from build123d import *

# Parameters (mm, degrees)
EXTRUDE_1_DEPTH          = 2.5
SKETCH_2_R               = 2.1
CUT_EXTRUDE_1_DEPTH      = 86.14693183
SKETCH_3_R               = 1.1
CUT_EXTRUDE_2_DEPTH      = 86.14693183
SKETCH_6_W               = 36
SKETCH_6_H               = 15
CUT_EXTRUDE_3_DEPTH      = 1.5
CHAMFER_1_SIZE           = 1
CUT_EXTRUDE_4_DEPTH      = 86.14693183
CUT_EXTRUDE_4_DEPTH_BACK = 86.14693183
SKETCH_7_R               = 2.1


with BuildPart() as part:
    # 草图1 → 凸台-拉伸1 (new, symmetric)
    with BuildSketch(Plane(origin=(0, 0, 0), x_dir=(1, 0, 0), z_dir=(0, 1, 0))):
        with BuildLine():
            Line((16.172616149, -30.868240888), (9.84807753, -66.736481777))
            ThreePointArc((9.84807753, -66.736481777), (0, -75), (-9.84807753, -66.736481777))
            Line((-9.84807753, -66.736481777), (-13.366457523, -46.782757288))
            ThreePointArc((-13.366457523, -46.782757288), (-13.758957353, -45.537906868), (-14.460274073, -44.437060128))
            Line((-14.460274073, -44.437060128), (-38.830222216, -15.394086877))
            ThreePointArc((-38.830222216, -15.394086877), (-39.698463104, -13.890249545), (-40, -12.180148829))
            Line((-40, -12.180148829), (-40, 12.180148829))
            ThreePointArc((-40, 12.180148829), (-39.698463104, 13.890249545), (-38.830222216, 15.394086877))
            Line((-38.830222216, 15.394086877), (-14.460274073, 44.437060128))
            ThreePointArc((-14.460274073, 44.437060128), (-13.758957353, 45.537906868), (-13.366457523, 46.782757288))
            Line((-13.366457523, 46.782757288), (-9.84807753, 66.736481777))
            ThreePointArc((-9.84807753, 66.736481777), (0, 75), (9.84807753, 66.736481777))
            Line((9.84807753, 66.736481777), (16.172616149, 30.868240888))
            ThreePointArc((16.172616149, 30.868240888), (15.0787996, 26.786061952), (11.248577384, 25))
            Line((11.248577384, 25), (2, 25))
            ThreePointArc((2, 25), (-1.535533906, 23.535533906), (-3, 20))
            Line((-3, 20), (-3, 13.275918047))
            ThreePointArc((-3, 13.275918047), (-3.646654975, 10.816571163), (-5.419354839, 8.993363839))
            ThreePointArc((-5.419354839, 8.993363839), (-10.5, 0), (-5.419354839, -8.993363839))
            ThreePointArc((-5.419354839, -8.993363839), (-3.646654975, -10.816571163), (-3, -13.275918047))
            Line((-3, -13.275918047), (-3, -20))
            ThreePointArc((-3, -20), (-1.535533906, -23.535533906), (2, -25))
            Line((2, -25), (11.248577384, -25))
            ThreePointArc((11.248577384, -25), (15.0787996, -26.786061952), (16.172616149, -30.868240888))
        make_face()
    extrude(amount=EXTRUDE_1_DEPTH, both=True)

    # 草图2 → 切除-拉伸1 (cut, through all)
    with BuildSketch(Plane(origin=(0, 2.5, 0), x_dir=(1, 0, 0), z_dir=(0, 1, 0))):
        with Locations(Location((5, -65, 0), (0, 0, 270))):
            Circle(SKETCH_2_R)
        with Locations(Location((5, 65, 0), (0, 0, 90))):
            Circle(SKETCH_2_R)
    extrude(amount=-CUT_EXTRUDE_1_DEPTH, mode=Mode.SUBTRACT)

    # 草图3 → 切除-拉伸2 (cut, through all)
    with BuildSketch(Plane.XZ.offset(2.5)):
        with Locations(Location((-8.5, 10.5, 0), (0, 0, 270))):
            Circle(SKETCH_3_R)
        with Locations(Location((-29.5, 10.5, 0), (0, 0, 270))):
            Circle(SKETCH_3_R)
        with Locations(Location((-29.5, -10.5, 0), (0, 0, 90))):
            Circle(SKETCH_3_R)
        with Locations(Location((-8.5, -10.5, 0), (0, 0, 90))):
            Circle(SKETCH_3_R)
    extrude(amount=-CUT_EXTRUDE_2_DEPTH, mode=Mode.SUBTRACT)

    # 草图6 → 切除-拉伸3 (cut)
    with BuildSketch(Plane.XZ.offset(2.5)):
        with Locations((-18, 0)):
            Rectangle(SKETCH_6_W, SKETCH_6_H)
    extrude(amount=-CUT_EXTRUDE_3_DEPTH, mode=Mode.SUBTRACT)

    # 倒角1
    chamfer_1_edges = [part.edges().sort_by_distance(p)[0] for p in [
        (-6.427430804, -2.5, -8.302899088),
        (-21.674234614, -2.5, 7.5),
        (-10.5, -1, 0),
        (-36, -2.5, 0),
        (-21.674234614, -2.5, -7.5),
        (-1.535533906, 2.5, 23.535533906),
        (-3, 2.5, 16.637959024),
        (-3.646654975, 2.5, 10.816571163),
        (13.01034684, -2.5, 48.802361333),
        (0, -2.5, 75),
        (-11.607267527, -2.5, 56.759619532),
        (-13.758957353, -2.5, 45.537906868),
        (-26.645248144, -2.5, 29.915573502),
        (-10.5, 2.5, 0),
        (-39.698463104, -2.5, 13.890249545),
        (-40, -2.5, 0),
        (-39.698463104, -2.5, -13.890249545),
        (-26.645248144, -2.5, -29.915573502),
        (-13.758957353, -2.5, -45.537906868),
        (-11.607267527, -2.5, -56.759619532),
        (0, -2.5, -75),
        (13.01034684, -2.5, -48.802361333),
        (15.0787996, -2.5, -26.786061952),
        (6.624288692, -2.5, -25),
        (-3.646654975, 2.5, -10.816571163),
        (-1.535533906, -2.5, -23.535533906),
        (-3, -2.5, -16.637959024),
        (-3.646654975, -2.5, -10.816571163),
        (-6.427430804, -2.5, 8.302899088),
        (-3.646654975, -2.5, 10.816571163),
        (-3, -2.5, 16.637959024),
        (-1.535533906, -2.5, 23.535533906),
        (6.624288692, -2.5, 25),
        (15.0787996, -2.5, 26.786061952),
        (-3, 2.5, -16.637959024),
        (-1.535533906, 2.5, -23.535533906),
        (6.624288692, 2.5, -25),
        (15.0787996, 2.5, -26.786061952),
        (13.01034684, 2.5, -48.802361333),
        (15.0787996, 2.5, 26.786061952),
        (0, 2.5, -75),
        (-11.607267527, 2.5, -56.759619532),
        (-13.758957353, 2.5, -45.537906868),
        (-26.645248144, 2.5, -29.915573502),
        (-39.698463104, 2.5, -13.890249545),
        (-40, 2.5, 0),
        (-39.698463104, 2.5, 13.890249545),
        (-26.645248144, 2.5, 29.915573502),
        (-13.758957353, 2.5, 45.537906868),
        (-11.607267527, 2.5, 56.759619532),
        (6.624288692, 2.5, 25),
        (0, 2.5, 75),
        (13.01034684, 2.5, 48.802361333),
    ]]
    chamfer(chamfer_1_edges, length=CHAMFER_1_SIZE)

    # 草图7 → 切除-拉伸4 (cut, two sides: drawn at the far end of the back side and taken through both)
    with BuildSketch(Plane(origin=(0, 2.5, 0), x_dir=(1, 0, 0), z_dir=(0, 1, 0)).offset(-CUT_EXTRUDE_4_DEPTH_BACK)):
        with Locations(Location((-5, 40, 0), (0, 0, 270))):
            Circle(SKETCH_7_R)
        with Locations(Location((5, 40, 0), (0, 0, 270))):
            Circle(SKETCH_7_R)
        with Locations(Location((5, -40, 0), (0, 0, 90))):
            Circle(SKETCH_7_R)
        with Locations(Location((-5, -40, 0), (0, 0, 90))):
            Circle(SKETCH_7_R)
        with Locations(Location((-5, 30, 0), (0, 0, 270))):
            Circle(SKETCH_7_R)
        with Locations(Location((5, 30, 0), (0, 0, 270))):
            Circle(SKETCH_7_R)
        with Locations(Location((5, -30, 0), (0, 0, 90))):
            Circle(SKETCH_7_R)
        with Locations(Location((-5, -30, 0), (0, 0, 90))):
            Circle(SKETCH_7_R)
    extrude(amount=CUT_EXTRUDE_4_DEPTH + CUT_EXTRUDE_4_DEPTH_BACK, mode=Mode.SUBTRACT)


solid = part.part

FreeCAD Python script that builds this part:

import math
import FreeCAD as App
import Part
import Sketcher
Q = App.Units.Quantity


def edges_at(feature, points):
    """Names of the edges that pass closest to the given points."""
    edges = feature.Shape.Edges
    near = lambda p: min(range(len(edges)), key=lambda i: edges[i].distToShape(Part.Vertex(*p))[0])
    return sorted({f"Edge{near(p) + 1}" for p in points})

doc = App.newDocument("Part")
body = doc.addObject("PartDesign::Body", "Body")

sketch1 = body.newObject("Sketcher::SketchObject", "Sketch")
sketch1.AttachmentSupport = (doc.getObject("XZ_Plane"), [""])
sketch1.MapMode = "FlatFace"
sketch1.addGeometry([
    Part.LineSegment(App.Vector(9.8, 66.7, 0), App.Vector(16.2, 30.9, 0)),
    Part.ArcOfCircle(Part.Circle(App.Vector(11.2, 30, 0), App.Vector(0, 0, 1), 5), math.radians(-90), math.radians(10)),
    Part.LineSegment(App.Vector(11.2, 25, 0), App.Vector(2, 25, 0)),
    Part.ArcOfCircle(Part.Circle(App.Vector(2, 20, 0), App.Vector(0, 0, 1), 5), math.radians(90), math.radians(180)),
    Part.LineSegment(App.Vector(-3, 20, 0), App.Vector(-3, 13.3, 0)),
    Part.ArcOfCircle(Part.Circle(App.Vector(-8, 13.3, 0), App.Vector(0, 0, 1), 5), math.radians(-59), math.radians(0)),
    Part.ArcOfCircle(Part.Circle(App.Vector(0, 0, 0), App.Vector(0, 0, 1), 10.5), math.radians(121), math.radians(239)),
    Part.ArcOfCircle(Part.Circle(App.Vector(-8, -13.3, 0), App.Vector(0, 0, 1), 5), math.radians(0), math.radians(59)),
    Part.LineSegment(App.Vector(-3, -13.3, 0), App.Vector(-3, -20, 0)),
    Part.ArcOfCircle(Part.Circle(App.Vector(2, -20, 0), App.Vector(0, 0, 1), 5), math.radians(180), math.radians(270)),
    Part.LineSegment(App.Vector(2, -25, 0), App.Vector(11.2, -25, 0)),
    Part.ArcOfCircle(Part.Circle(App.Vector(11.2, -30, 0), App.Vector(0, 0, 1), 5), math.radians(-10), math.radians(90)),
    Part.LineSegment(App.Vector(16.2, -30.9, 0), App.Vector(9.8, -66.7, 0)),
    Part.ArcOfCircle(Part.Circle(App.Vector(0, -65, 0), App.Vector(0, 0, 1), 10), math.radians(-170), math.radians(-10)),
    Part.LineSegment(App.Vector(-9.8, -66.7, 0), App.Vector(-13.4, -46.8, 0)),
    Part.ArcOfCircle(Part.Circle(App.Vector(-18.3, -47.7, 0), App.Vector(0, 0, 1), 5), math.radians(10), math.radians(40)),
    Part.LineSegment(App.Vector(-14.5, -44.4, 0), App.Vector(-38.8, -15.4, 0)),
    Part.ArcOfCircle(Part.Circle(App.Vector(-35, -12.2, 0), App.Vector(0, 0, 1), 5), math.radians(-180), math.radians(-140)),
    Part.LineSegment(App.Vector(-40, -12.2, 0), App.Vector(-40, 12.2, 0)),
    Part.ArcOfCircle(Part.Circle(App.Vector(-35, 12.2, 0), App.Vector(0, 0, 1), 5), math.radians(140), math.radians(180)),
    Part.LineSegment(App.Vector(-38.8, 15.4, 0), App.Vector(-14.5, 44.4, 0)),
    Part.ArcOfCircle(Part.Circle(App.Vector(-18.3, 47.7, 0), App.Vector(0, 0, 1), 5), math.radians(-40), math.radians(-10)),
    Part.LineSegment(App.Vector(-13.4, 46.8, 0), App.Vector(-9.8, 66.7, 0)),
    Part.ArcOfCircle(Part.Circle(App.Vector(0, 65, 0), App.Vector(0, 0, 1), 10), math.radians(10), math.radians(170)),
], False)
sketch1.addConstraint([
    Sketcher.Constraint("Tangent", 0, 2, 1, 2),
    Sketcher.Constraint("Tangent", 1, 1, 2, 1),
    Sketcher.Constraint("Tangent", 2, 2, 3, 1),
    Sketcher.Constraint("Tangent", 3, 2, 4, 1),
    Sketcher.Constraint("Tangent", 4, 2, 5, 2),
    Sketcher.Constraint("Tangent", 5, 1, 6, 1),
    Sketcher.Constraint("Tangent", 6, 2, 7, 2),
    Sketcher.Constraint("Tangent", 7, 1, 8, 1),
    Sketcher.Constraint("Tangent", 8, 2, 9, 1),
    Sketcher.Constraint("Tangent", 9, 2, 10, 1),
    Sketcher.Constraint("Tangent", 10, 2, 11, 2),
    Sketcher.Constraint("Tangent", 11, 1, 12, 1),
    Sketcher.Constraint("Tangent", 12, 2, 13, 2),
    Sketcher.Constraint("Tangent", 13, 1, 14, 1),
    Sketcher.Constraint("Tangent", 14, 2, 15, 1),
    Sketcher.Constraint("Tangent", 15, 2, 16, 1),
    Sketcher.Constraint("Tangent", 16, 2, 17, 2),
    Sketcher.Constraint("Tangent", 17, 1, 18, 1),
    Sketcher.Constraint("Tangent", 18, 2, 19, 2),
    Sketcher.Constraint("Tangent", 19, 1, 20, 1),
    Sketcher.Constraint("Tangent", 20, 2, 21, 1),
    Sketcher.Constraint("Tangent", 21, 2, 22, 1),
    Sketcher.Constraint("Tangent", 22, 2, 23, 2),
    Sketcher.Constraint("Tangent", 23, 1, 0, 1),
    Sketcher.Constraint("Horizontal", 2),
    Sketcher.Constraint("Vertical", 4),
    Sketcher.Constraint("Vertical", 8),
    Sketcher.Constraint("Horizontal", 10),
    Sketcher.Constraint("Vertical", 18),
    Sketcher.Constraint("Coincident", 6, 3, -1, 1),
    Sketcher.Constraint("Equal", 1, 3),
    Sketcher.Constraint("Equal", 3, 5),
    Sketcher.Constraint("Equal", 5, 7),
    Sketcher.Constraint("Equal", 7, 9),
    Sketcher.Constraint("Equal", 9, 11),
    Sketcher.Constraint("Equal", 11, 15),
    Sketcher.Constraint("Equal", 15, 17),
    Sketcher.Constraint("Equal", 17, 19),
    Sketcher.Constraint("Equal", 19, 21),
    Sketcher.Constraint("Equal", 13, 23),
    Sketcher.Constraint("Symmetric", 13, 3, 23, 3, -1, 1),
    Sketcher.Constraint("Symmetric", 12, 2, 13, 1, -2),
    Sketcher.Constraint("Symmetric", 3, 3, 9, 3, -1),
    Sketcher.Constraint("Symmetric", 15, 3, 21, 3, -1),
    Sketcher.Constraint("Parallel", 0, 14),
    Sketcher.Constraint("Vertical", 16, 2, 19, 1),
    Sketcher.Constraint("Radius", 1, Q("5 mm")),
    Sketcher.Constraint("Radius", 13, Q("10 mm")),
    Sketcher.Constraint("Radius", 6, Q("10.5 mm")),
    Sketcher.Constraint("Angle", 0, Q("-80 deg")),
    Sketcher.Constraint("Angle", 16, Q("130 deg")),
    Sketcher.Constraint("DistanceY", -1, 1, 1, 3, Q("30 mm")),
    Sketcher.Constraint("DistanceX", -1, 1, 3, 3, Q("2 mm")),
    Sketcher.Constraint("DistanceY", 13, 3, -1, 1, Q("65 mm")),
    Sketcher.Constraint("DistanceX", 17, 3, -1, 1, Q("35 mm")),
    Sketcher.Constraint("DistanceY", 15, 3, -1, 1, Q("47.650998 mm")),
])
pad1 = body.newObject("PartDesign::Pad", "Pad")
pad1.Profile = sketch1
pad1.Length = 5
pad1.Midplane = True

sketch2 = body.newObject("Sketcher::SketchObject", "Sketch001")
sketch2.AttachmentSupport = (doc.getObject("XZ_Plane"), [""])
sketch2.MapMode = "FlatFace"
sketch2.AttachmentOffset = App.Placement(App.Vector(0, 0, -2.5), App.Rotation())
sketch2.addGeometry([
    Part.Circle(App.Vector(5, 65, 0), App.Vector(0, 0, 1), 2.1),
    Part.Circle(App.Vector(5, -65, 0), App.Vector(0, 0, 1), 2.1),
], False)
sketch2.addConstraint([
    Sketcher.Constraint("Equal", 0, 1),
    Sketcher.Constraint("Symmetric", 0, 3, 1, 3, -1),
    Sketcher.Constraint("Diameter", 0, Q("4.2 mm")),
    Sketcher.Constraint("DistanceX", -1, 1, 0, 3, Q("5 mm")),
    Sketcher.Constraint("DistanceY", -1, 1, 0, 3, Q("65 mm")),
])
pocket1 = body.newObject("PartDesign::Pocket", "Pocket")
pocket1.Profile = sketch2
pocket1.Type = "ThroughAll"
pocket1.Reversed = True

sketch3 = body.newObject("Sketcher::SketchObject", "Sketch002")
sketch3.AttachmentSupport = (doc.getObject("XZ_Plane"), [""])
sketch3.MapMode = "FlatFace"
sketch3.AttachmentOffset = App.Placement(App.Vector(0, 0, 2.5), App.Rotation())
sketch3.addGeometry([
    Part.Circle(App.Vector(-8.5, 10.5, 0), App.Vector(0, 0, 1), 1.1),
    Part.Circle(App.Vector(-29.5, 10.5, 0), App.Vector(0, 0, 1), 1.1),
    Part.Circle(App.Vector(-29.5, -10.5, 0), App.Vector(0, 0, 1), 1.1),
    Part.Circle(App.Vector(-8.5, -10.5, 0), App.Vector(0, 0, 1), 1.1),
], False)
sketch3.addConstraint([
    Sketcher.Constraint("Equal", 0, 1),
    Sketcher.Constraint("Equal", 1, 2),
    Sketcher.Constraint("Equal", 2, 3),
    Sketcher.Constraint("Symmetric", 1, 3, 2, 3, -1),
    Sketcher.Constraint("Symmetric", 0, 3, 3, 3, -1),
    Sketcher.Constraint("Horizontal", 0, 3, 1, 3),
    Sketcher.Constraint("Diameter", 0, Q("2.2 mm")),
    Sketcher.Constraint("DistanceX", 1, 3, 0, 3, Q("21 mm")),
    Sketcher.Constraint("DistanceY", 2, 3, 1, 3, Q("21 mm")),
    Sketcher.Constraint("DistanceX", 0, 3, -1, 1, Q("8.5 mm")),
])
pocket2 = body.newObject("PartDesign::Pocket", "Pocket001")
pocket2.Profile = sketch3
pocket2.Type = "ThroughAll"

sketch4 = body.newObject("Sketcher::SketchObject", "Sketch003")
sketch4.AttachmentSupport = (doc.getObject("XZ_Plane"), [""])
sketch4.MapMode = "FlatFace"
sketch4.AttachmentOffset = App.Placement(App.Vector(0, 0, 2.5), App.Rotation())
sketch4.addGeometry([
    Part.LineSegment(App.Vector(-36, 8, 0), App.Vector(-36, -8, 0)),
    Part.LineSegment(App.Vector(-36, -8, 0), App.Vector(0, -8, 0)),
    Part.LineSegment(App.Vector(0, -8, 0), App.Vector(0, 8, 0)),
    Part.LineSegment(App.Vector(0, 8, 0), App.Vector(-36, 8, 0)),
], False)
sketch4.addConstraint([
    Sketcher.Constraint("Coincident", 0, 2, 1, 1),
    Sketcher.Constraint("Coincident", 1, 2, 2, 1),
    Sketcher.Constraint("Coincident", 2, 2, 3, 1),
    Sketcher.Constraint("Coincident", 3, 2, 0, 1),
    Sketcher.Constraint("Vertical", 0),
    Sketcher.Constraint("Horizontal", 1),
    Sketcher.Constraint("Vertical", 2),
    Sketcher.Constraint("Horizontal", 3),
    Sketcher.Constraint("Symmetric", 1, 2, 2, 2, -1, 1),
    Sketcher.Constraint("DistanceX", 1, 1, 1, 2, Q("36 mm")),
    Sketcher.Constraint("DistanceY", 0, 2, 0, 1, Q("15 mm")),
])
pocket3 = body.newObject("PartDesign::Pocket", "Pocket002")
pocket3.Profile = sketch4
pocket3.Length = 1.5
doc.recompute()

chamfer = body.newObject("PartDesign::Chamfer", "Chamfer")
chamfer.Base = (pocket3, edges_at(pocket3, [
    (-6.427, -2.5, -8.303),
    (-21.674, -2.5, 7.5),
    (-10.5, -1, 0),
    (-36, -2.5, 0),
    (-21.674, -2.5, -7.5),
    (-1.536, 2.5, 23.536),
    (-3, 2.5, 16.638),
    (-3.647, 2.5, 10.817),
    (13.01, -2.5, 48.802),
    (0, -2.5, 75),
    (-11.607, -2.5, 56.76),
    (-13.759, -2.5, 45.538),
    (-26.645, -2.5, 29.916),
    (-10.5, 2.5, 0),
    (-39.698, -2.5, 13.89),
    (-40, -2.5, 0),
    (-39.698, -2.5, -13.89),
    (-26.645, -2.5, -29.916),
    (-13.759, -2.5, -45.538),
    (-11.607, -2.5, -56.76),
    (0, -2.5, -75),
    (13.01, -2.5, -48.802),
    (15.079, -2.5, -26.786),
    (6.624, -2.5, -25),
    (-3.647, 2.5, -10.817),
    (-1.536, -2.5, -23.536),
    (-3, -2.5, -16.638),
    (-3.647, -2.5, -10.817),
    (-6.427, -2.5, 8.303),
    (-3.647, -2.5, 10.817),
    (-3, -2.5, 16.638),
    (-1.536, -2.5, 23.536),
    (6.624, -2.5, 25),
    (15.079, -2.5, 26.786),
    (-3, 2.5, -16.638),
    (-1.536, 2.5, -23.536),
    (6.624, 2.5, -25),
    (15.079, 2.5, -26.786),
    (13.01, 2.5, -48.802),
    (15.079, 2.5, 26.786),
    (0, 2.5, -75),
    (-11.607, 2.5, -56.76),
    (-13.759, 2.5, -45.538),
    (-26.645, 2.5, -29.916),
    (-39.698, 2.5, -13.89),
    (-40, 2.5, 0),
    (-39.698, 2.5, 13.89),
    (-26.645, 2.5, 29.916),
    (-13.759, 2.5, 45.538),
    (-11.607, 2.5, 56.76),
    (6.624, 2.5, 25),
    (0, 2.5, 75),
    (13.01, 2.5, 48.802),
]))
chamfer.Size = 1

sketch5 = body.newObject("Sketcher::SketchObject", "Sketch004")
sketch5.AttachmentSupport = (doc.getObject("XZ_Plane"), [""])
sketch5.MapMode = "FlatFace"
sketch5.AttachmentOffset = App.Placement(App.Vector(0, 0, -2.5), App.Rotation())
sketch5.addGeometry([
    Part.Circle(App.Vector(-5, -40, 0), App.Vector(0, 0, 1), 2.1),
    Part.Circle(App.Vector(5, -40, 0), App.Vector(0, 0, 1), 2.1),
    Part.Circle(App.Vector(5, 40, 0), App.Vector(0, 0, 1), 2.1),
    Part.Circle(App.Vector(-5, 40, 0), App.Vector(0, 0, 1), 2.1),
    Part.Circle(App.Vector(-5, -30, 0), App.Vector(0, 0, 1), 2.1),
    Part.Circle(App.Vector(5, -30, 0), App.Vector(0, 0, 1), 2.1),
    Part.Circle(App.Vector(5, 30, 0), App.Vector(0, 0, 1), 2.1),
    Part.Circle(App.Vector(-5, 30, 0), App.Vector(0, 0, 1), 2.1),
], False)
sketch5.addConstraint([
    Sketcher.Constraint("Equal", 0, 1),
    Sketcher.Constraint("Equal", 1, 2),
    Sketcher.Constraint("Equal", 2, 3),
    Sketcher.Constraint("Equal", 3, 4),
    Sketcher.Constraint("Equal", 4, 5),
    Sketcher.Constraint("Equal", 5, 6),
    Sketcher.Constraint("Equal", 6, 7),
    Sketcher.Constraint("Symmetric", 0, 3, 2, 3, -1, 1),
    Sketcher.Constraint("Symmetric", 1, 3, 3, 3, -1, 1),
    Sketcher.Constraint("Symmetric", 4, 3, 6, 3, -1, 1),
    Sketcher.Constraint("Symmetric", 5, 3, 7, 3, -1, 1),
    Sketcher.Constraint("Symmetric", 0, 3, 1, 3, -2),
    Sketcher.Constraint("Symmetric", 4, 3, 5, 3, -2),
    Sketcher.Constraint("Vertical", 3, 3, 4, 3),
    Sketcher.Constraint("Diameter", 0, Q("4.2 mm")),
    Sketcher.Constraint("DistanceX", 0, 3, -1, 1, Q("5 mm")),
    Sketcher.Constraint("DistanceY", 0, 3, -1, 1, Q("40 mm")),
    Sketcher.Constraint("DistanceY", 4, 3, -1, 1, Q("30 mm")),
])
pocket4 = body.newObject("PartDesign::Pocket", "Pocket003")
pocket4.Profile = sketch5
pocket4.Type = "ThroughAll"
pocket4.Midplane = True

doc.recompute()
